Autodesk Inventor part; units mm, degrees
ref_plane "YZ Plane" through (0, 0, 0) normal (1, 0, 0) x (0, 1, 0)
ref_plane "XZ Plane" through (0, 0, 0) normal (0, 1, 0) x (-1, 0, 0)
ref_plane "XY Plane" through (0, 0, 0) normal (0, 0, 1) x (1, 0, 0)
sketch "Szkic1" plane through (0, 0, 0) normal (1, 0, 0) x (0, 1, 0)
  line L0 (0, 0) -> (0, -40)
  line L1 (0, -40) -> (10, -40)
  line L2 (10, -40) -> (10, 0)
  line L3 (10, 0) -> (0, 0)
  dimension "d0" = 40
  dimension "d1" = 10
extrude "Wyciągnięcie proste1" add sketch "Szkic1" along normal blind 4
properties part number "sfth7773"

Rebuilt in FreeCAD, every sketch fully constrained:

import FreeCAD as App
import Part
import Sketcher

V = App.Vector
Q = App.Units.Quantity

doc = App.newDocument("Part")
body = doc.addObject("PartDesign::Body", "Body")

sketch1 = body.newObject("Sketcher::SketchObject", "Sketch")
sketch1.AttachmentSupport = (doc.getObject("YZ_Plane"), [""])
sketch1.MapMode = "FlatFace"
sketch1.addGeometry(Part.LineSegment(V(10, 0, 0), V(0, 0, 0)), False)
sketch1.addGeometry(Part.LineSegment(V(0, 0, 0), V(0, -40, 0)), False)
sketch1.addGeometry(Part.LineSegment(V(0, -40, 0), V(10, -40, 0)), False)
sketch1.addGeometry(Part.LineSegment(V(10, -40, 0), V(10, 0, 0)), False)
sketch1.addConstraint(Sketcher.Constraint("Coincident", 0, 2, 1, 1))
sketch1.addConstraint(Sketcher.Constraint("Coincident", 1, 2, 2, 1))
sketch1.addConstraint(Sketcher.Constraint("Coincident", 2, 2, 3, 1))
sketch1.addConstraint(Sketcher.Constraint("Coincident", 3, 2, 0, 1))
sketch1.addConstraint(Sketcher.Constraint("Horizontal", 0))
sketch1.addConstraint(Sketcher.Constraint("Vertical", 1))
sketch1.addConstraint(Sketcher.Constraint("Horizontal", 2))
sketch1.addConstraint(Sketcher.Constraint("Vertical", 3))
sketch1.addConstraint(Sketcher.Constraint("Coincident", 0, 2, -1, 1))
sketch1.addConstraint(Sketcher.Constraint("DistanceX", 0, 2, 0, 1, Q("10 mm")))
sketch1.addConstraint(Sketcher.Constraint("DistanceY", 1, 2, 1, 1, Q("40 mm")))
pad1 = body.newObject("PartDesign::Pad", "Pad")
pad1.Profile = sketch1
pad1.Length = 4

doc.recompute()
